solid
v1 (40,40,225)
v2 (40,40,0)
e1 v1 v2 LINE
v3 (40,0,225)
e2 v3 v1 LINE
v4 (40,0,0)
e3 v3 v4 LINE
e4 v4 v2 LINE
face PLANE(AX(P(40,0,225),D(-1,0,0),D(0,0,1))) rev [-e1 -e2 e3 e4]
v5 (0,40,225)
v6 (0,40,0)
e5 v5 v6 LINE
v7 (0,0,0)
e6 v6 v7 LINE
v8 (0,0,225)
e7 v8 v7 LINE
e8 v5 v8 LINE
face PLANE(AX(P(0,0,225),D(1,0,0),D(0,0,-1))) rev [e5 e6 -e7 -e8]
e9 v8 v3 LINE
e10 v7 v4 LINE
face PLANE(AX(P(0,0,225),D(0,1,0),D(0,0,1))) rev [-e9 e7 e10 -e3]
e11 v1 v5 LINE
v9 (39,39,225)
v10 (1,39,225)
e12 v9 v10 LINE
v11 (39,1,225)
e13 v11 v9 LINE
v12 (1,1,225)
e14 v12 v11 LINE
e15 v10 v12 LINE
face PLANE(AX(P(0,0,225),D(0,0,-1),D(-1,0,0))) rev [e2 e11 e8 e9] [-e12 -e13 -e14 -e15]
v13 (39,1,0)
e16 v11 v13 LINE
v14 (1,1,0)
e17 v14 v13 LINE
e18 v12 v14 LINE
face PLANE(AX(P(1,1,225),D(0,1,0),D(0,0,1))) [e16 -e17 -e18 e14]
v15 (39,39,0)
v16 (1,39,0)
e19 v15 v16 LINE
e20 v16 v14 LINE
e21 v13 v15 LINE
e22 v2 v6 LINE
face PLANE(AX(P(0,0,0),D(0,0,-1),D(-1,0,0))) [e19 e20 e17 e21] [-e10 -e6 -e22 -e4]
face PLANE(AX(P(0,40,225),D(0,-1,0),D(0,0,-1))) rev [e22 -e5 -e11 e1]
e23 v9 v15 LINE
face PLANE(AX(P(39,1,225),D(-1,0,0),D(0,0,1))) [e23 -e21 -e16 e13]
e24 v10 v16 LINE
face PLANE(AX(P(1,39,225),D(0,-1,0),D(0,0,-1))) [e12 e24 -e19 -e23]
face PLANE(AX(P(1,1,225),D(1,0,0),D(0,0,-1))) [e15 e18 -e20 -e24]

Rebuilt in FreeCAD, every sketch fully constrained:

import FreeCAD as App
import Part
import Sketcher

V = App.Vector

doc = App.newDocument("Part")
body = doc.addObject("PartDesign::Body", "Body")

sketch1 = body.newObject("Sketcher::SketchObject", "Sketch")
sketch1.AttachmentSupport = (doc.getObject("XY_Plane"), [""])
sketch1.MapMode = "FlatFace"
sketch1.addGeometry([
    Part.LineSegment(V(0, 40, 0), V(0, 0, 0)),
    Part.LineSegment(V(0, 0, 0), V(40, 0, 0)),
    Part.LineSegment(V(40, 0, 0), V(40, 40, 0)),
    Part.LineSegment(V(40, 40, 0), V(0, 40, 0)),
    Part.LineSegment(V(39, 1, 0), V(1, 1, 0)),
    Part.LineSegment(V(1, 1, 0), V(1, 39, 0)),
    Part.LineSegment(V(1, 39, 0), V(39, 39, 0)),
    Part.LineSegment(V(39, 39, 0), V(39, 1, 0)),
], False)
sketch1.addConstraint([
    Sketcher.Constraint("Coincident", 0, 2, 1, 1),
    Sketcher.Constraint("Coincident", 1, 2, 2, 1),
    Sketcher.Constraint("Coincident", 2, 2, 3, 1),
    Sketcher.Constraint("Coincident", 3, 2, 0, 1),
    Sketcher.Constraint("Coincident", 4, 2, 5, 1),
    Sketcher.Constraint("Coincident", 5, 2, 6, 1),
    Sketcher.Constraint("Coincident", 6, 2, 7, 1),
    Sketcher.Constraint("Coincident", 7, 2, 4, 1),
    Sketcher.Constraint("Vertical", 0),
    Sketcher.Constraint("Horizontal", 1),
    Sketcher.Constraint("Vertical", 2),
    Sketcher.Constraint("Horizontal", 3),
    Sketcher.Constraint("Horizontal", 4),
    Sketcher.Constraint("Vertical", 5),
    Sketcher.Constraint("Horizontal", 6),
    Sketcher.Constraint("Vertical", 7),
    Sketcher.Constraint("Coincident", 0, 2, -1, 1),
    Sketcher.Constraint("Equal", 3, 0),
    Sketcher.Constraint("Equal", 6, 5),
    Sketcher.Constraint("DistanceX", 1, 1, 1, 2, 40.0),
    Sketcher.Constraint("DistanceX", 4, 2, 4, 1, 38.0),
    Sketcher.Constraint("DistanceX", -1, 1, 4, 2, 1.0),
    Sketcher.Constraint("DistanceY", -1, 1, 4, 2, 1.0),
])
pad1 = body.newObject("PartDesign::Pad", "Pad")
pad1.Profile = sketch1
pad1.Length = 225

doc.recompute()
